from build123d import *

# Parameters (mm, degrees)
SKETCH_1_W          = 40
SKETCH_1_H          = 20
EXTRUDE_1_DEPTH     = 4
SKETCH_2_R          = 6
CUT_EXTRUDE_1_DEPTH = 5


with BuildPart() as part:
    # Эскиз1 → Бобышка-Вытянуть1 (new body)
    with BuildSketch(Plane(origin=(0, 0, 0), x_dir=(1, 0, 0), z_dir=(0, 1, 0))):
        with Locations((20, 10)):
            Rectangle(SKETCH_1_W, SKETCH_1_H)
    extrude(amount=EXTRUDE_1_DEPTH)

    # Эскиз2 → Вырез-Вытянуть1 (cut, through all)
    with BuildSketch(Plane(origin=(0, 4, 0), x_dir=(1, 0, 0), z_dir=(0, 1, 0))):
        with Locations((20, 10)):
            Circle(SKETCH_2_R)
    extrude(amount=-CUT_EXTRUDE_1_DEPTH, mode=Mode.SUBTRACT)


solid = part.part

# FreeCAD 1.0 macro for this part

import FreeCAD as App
import Part
import Sketcher

V = App.Vector
Q = App.Units.Quantity

doc = App.newDocument("Part")
body = doc.addObject("PartDesign::Body", "Body")

sketch1 = doc.addObject("Sketcher::SketchObject", "Sketch")
body.addObject(sketch1)
sketch1.AttachmentSupport = (doc.XZ_Plane, [""])
sketch1.MapMode = "FlatFace"
sketch1.addGeometry([
    Part.LineSegment(V(0, -20, 0), V(0, 0, 0)),
    Part.LineSegment(V(0, 0, 0), V(40, 0, 0)),
    Part.LineSegment(V(40, 0, 0), V(40, -20, 0)),
    Part.LineSegment(V(40, -20, 0), V(0, -20, 0)),
], False)
sketch1.addConstraint([
    Sketcher.Constraint("Coincident", 0, 2, 1, 1),
    Sketcher.Constraint("Coincident", 1, 2, 2, 1),
    Sketcher.Constraint("Coincident", 2, 2, 3, 1),
    Sketcher.Constraint("Coincident", 3, 2, 0, 1),
    Sketcher.Constraint("Vertical", 0),
    Sketcher.Constraint("Horizontal", 1),
    Sketcher.Constraint("Vertical", 2),
    Sketcher.Constraint("Horizontal", 3),
    Sketcher.Constraint("Coincident", 0, 2, -1, 1),
    Sketcher.Constraint("DistanceX", 1, 1, 1, 2, Q("40 mm")),
    Sketcher.Constraint("DistanceY", 0, 1, 0, 2, Q("20 mm")),
])
pad1 = doc.addObject("PartDesign::Pad", "Pad")
body.addObject(pad1)
pad1.Profile = sketch1
pad1.Length = 4
pad1.Reversed = True

sketch2 = doc.addObject("Sketcher::SketchObject", "Sketch001")
body.addObject(sketch2)
sketch2.AttachmentSupport = (doc.XZ_Plane, [""])
sketch2.MapMode = "FlatFace"
sketch2.AttachmentOffset = App.Placement(V(0, 0, -4), App.Rotation())
sketch2.addGeometry(Part.Circle(V(20, -10, 0), V(0, 0, 1), 6), False)
sketch2.addConstraint([
    Sketcher.Constraint("Diameter", 0, Q("12 mm")),
    Sketcher.Constraint("DistanceX", -1, 1, 0, 3, Q("20 mm")),
    Sketcher.Constraint("DistanceY", 0, 3, -1, 1, Q("10 mm")),
])
pocket1 = doc.addObject("PartDesign::Pocket", "Pocket")
body.addObject(pocket1)
pocket1.Profile = sketch2
pocket1.Type = "ThroughAll"
pocket1.Reversed = True

doc.recompute()
